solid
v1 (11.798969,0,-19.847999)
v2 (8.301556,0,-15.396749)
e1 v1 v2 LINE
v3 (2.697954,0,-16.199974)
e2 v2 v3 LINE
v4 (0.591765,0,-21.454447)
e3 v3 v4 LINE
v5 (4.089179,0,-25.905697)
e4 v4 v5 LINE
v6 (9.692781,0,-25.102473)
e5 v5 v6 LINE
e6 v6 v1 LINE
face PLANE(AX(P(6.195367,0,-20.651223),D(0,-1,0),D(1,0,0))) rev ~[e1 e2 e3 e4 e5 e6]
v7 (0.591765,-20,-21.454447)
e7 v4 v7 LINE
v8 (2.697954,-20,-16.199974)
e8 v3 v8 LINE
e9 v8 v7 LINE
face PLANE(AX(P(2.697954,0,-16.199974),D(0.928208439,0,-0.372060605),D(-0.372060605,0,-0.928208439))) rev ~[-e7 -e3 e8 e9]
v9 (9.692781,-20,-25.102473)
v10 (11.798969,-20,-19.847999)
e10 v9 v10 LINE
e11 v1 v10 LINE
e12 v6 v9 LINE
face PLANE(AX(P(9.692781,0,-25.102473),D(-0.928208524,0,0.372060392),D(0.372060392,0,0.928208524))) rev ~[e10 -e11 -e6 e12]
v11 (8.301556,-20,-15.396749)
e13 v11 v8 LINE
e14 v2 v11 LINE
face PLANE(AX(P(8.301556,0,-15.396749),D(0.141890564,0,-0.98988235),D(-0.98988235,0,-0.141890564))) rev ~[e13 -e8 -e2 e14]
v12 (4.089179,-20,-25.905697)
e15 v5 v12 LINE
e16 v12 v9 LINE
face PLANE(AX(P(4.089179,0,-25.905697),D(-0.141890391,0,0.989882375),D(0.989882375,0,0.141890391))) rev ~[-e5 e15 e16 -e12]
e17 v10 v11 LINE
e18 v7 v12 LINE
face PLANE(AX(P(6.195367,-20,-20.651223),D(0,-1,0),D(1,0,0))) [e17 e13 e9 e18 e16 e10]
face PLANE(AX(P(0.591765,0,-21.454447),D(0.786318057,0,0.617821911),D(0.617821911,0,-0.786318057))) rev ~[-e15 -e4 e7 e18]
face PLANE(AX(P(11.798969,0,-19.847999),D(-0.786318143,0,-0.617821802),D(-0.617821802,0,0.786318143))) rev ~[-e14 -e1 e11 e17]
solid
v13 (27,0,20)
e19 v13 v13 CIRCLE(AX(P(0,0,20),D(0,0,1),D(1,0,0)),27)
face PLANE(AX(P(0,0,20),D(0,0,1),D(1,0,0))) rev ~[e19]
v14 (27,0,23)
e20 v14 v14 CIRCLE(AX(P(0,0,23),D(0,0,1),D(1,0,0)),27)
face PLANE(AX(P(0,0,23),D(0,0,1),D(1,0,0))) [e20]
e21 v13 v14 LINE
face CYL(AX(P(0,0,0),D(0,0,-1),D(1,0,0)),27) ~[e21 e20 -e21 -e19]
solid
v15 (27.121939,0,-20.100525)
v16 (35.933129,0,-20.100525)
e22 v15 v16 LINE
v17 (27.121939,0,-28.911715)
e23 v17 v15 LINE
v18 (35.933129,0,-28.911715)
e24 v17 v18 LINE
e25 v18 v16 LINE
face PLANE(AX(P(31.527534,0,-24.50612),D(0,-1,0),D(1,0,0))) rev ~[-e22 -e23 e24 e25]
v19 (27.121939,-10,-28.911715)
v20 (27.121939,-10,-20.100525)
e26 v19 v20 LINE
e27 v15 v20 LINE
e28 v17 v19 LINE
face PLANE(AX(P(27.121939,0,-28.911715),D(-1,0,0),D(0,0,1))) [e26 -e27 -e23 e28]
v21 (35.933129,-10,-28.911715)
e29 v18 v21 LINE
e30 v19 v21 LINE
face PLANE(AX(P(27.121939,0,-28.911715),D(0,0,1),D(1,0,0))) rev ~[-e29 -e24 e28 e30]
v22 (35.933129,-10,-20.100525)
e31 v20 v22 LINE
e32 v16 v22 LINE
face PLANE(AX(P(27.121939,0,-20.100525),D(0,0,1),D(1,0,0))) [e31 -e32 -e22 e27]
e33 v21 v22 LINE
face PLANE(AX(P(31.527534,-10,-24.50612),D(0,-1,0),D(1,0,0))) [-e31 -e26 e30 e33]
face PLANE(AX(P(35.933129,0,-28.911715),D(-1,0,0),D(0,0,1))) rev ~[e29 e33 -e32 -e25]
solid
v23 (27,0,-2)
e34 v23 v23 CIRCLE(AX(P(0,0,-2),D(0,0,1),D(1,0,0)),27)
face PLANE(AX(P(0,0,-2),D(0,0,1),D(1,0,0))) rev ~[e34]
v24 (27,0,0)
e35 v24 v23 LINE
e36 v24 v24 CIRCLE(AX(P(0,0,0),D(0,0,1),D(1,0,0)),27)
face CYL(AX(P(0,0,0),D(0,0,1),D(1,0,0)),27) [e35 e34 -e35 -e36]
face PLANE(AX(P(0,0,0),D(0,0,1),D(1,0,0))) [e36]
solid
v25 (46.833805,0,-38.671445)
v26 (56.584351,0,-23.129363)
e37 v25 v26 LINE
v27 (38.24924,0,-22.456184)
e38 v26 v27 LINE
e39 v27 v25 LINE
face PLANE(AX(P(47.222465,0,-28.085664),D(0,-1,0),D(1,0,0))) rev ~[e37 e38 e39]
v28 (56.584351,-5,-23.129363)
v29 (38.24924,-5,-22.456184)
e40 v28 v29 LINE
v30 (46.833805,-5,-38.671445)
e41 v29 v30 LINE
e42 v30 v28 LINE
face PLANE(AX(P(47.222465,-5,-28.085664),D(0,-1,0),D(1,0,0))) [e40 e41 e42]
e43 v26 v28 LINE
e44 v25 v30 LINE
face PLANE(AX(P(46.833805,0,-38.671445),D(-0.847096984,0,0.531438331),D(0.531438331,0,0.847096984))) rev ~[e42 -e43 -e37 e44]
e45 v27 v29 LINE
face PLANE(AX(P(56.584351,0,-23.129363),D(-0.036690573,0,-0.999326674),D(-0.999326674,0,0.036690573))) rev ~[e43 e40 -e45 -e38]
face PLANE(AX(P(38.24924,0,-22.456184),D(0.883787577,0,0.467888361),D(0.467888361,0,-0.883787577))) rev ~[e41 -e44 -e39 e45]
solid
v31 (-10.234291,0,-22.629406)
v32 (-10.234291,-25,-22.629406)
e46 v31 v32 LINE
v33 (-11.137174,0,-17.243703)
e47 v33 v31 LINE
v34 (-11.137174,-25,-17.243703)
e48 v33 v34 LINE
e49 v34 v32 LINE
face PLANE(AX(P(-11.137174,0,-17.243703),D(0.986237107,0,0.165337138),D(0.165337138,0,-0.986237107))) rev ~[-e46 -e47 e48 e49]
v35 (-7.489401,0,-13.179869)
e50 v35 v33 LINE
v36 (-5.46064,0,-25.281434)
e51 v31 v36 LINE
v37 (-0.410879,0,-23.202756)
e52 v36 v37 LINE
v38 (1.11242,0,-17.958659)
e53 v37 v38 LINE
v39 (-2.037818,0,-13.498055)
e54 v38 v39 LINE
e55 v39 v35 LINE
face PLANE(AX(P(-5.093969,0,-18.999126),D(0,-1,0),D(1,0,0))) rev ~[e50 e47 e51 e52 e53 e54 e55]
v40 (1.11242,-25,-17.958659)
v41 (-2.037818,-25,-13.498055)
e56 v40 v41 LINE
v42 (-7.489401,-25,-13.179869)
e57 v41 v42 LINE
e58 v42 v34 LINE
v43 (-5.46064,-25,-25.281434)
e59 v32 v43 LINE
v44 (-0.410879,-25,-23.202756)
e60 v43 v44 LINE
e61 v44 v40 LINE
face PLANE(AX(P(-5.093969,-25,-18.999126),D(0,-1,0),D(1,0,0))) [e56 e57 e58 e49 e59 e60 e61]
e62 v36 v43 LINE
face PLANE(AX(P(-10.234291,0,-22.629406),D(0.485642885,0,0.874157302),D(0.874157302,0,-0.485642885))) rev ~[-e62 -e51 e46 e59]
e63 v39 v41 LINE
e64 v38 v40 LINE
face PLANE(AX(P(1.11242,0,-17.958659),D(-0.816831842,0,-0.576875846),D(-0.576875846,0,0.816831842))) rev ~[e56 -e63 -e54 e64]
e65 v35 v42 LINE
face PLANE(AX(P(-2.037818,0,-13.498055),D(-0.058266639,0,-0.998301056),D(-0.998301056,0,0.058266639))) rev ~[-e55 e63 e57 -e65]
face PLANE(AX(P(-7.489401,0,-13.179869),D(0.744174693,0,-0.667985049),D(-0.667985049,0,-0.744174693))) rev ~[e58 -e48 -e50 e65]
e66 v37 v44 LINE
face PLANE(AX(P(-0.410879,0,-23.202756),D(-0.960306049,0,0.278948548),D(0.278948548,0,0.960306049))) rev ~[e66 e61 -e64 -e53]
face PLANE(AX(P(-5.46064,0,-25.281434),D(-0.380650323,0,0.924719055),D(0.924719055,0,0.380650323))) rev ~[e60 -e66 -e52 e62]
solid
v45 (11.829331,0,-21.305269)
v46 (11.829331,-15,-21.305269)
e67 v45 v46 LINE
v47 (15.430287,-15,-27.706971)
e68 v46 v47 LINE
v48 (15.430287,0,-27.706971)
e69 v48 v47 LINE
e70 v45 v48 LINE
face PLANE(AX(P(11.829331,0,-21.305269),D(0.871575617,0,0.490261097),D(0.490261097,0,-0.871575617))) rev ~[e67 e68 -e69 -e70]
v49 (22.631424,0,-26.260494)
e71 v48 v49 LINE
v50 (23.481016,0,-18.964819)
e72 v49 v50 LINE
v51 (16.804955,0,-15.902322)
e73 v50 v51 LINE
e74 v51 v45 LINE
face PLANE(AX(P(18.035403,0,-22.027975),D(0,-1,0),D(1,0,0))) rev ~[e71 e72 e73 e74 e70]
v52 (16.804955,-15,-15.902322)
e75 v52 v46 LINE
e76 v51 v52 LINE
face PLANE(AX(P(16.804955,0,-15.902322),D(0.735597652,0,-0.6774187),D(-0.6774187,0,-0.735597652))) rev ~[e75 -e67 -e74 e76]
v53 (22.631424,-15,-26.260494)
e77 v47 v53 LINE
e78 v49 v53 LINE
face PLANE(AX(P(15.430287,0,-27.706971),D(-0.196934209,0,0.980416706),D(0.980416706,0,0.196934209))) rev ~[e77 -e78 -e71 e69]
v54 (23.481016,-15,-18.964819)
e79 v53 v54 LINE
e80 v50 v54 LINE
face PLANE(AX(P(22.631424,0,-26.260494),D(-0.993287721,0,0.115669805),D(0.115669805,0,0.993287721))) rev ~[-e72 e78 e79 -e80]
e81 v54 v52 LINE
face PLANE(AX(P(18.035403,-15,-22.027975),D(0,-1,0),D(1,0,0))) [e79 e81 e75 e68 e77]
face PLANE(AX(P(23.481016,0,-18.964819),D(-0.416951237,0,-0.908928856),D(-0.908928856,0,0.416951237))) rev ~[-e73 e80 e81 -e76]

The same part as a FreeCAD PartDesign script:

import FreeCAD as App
import Part
import Sketcher
Q = App.Units.Quantity

doc = App.newDocument("Part")
body = doc.addObject("PartDesign::Body", "Body")

# Sketch on XY plane
sketch1 = doc.addObject("Sketcher::SketchObject", "Sketch")
body.addObject(sketch1)
sketch1.AttachmentSupport = (doc.XY_Plane, [""])
sketch1.MapMode = "FlatFace"
sketch1.addGeometry(Part.Circle(App.Vector(0, 0, 0), App.Vector(0, 0, 1), 27), False)
sketch1.addConstraint([
    Sketcher.Constraint("Coincident", 0, 3, -1, 1),
    Sketcher.Constraint("Diameter", 0, Q("54 mm")),
])
pad1 = doc.addObject("PartDesign::Pad", "Pad")
body.addObject(pad1)
pad1.Profile = sketch1
pad1.Length = 2
pad1.Reversed = True
body2 = doc.addObject("PartDesign::Body", "Body001")

# Sketch on XY plane
sketch2 = doc.addObject("Sketcher::SketchObject", "Sketch001")
body2.addObject(sketch2)
sketch2.AttachmentSupport = (doc.getObject("XY_Plane001"), [""])
sketch2.MapMode = "FlatFace"
sketch2.addGeometry(Part.Circle(App.Vector(0, 0, 0), App.Vector(0, 0, 1), 27), False)
sketch2.addConstraint([
    Sketcher.Constraint("Coincident", 0, 3, -1, 1),
    Sketcher.Constraint("Diameter", 0, Q("54 mm")),
])
pad2 = doc.addObject("PartDesign::Pad", "Pad001")
body2.addObject(pad2)
pad2.Profile = sketch2
pad2.Length = 23

# Sketch on XY plane
sketch3 = doc.addObject("Sketcher::SketchObject", "Sketch002")
body2.addObject(sketch3)
sketch3.AttachmentSupport = (doc.getObject("XY_Plane001"), [""])
sketch3.MapMode = "FlatFace"
sketch3.addGeometry(Part.Circle(App.Vector(0, 0, 0), App.Vector(0, 0, 1), 27), False)
sketch3.addConstraint([
    Sketcher.Constraint("Coincident", 0, 3, -1, 1),
    Sketcher.Constraint("Diameter", 0, Q("54 mm")),
])
pocket1 = doc.addObject("PartDesign::Pocket", "Pocket")
body2.addObject(pocket1)
pocket1.Profile = sketch3
pocket1.Length = 20
pocket1.Reversed = True
body3 = doc.addObject("PartDesign::Body", "Body002")

# Sketch on XZ plane
sketch4 = doc.addObject("Sketcher::SketchObject", "Sketch003")
body3.addObject(sketch4)
sketch4.AttachmentSupport = (doc.getObject("XZ_Plane002"), [""])
sketch4.MapMode = "FlatFace"
sketch4.addGeometry([
    Part.LineSegment(App.Vector(38, -22, 0), App.Vector(47, -39, 0)),
    Part.LineSegment(App.Vector(47, -39, 0), App.Vector(57, -23, 0)),
    Part.LineSegment(App.Vector(57, -23, 0), App.Vector(38, -22, 0)),
], False)
sketch4.addConstraint([
    Sketcher.Constraint("Coincident", 0, 2, 1, 1),
    Sketcher.Constraint("Coincident", 1, 2, 2, 1),
    Sketcher.Constraint("Coincident", 2, 2, 0, 1),
    Sketcher.Constraint("Equal", 0, 1),
    Sketcher.Constraint("Equal", 1, 2),
    Sketcher.Constraint("DistanceX", -1, 1, 1, 2, Q("56.584351 mm")),
    Sketcher.Constraint("DistanceX", -1, 1, 2, 2, Q("38.24924 mm")),
    Sketcher.Constraint("DistanceY", 0, 2, 1, 2, Q("15.542082 mm")),
    Sketcher.Constraint("DistanceY", 0, 2, -1, 1, Q("38.671445 mm")),
])
pad3 = doc.addObject("PartDesign::Pad", "Pad002")
body3.addObject(pad3)
pad3.Profile = sketch4
pad3.Length = 5
body4 = doc.addObject("PartDesign::Body", "Body003")

# Sketch on XZ plane
sketch5 = doc.addObject("Sketcher::SketchObject", "Sketch004")
body4.addObject(sketch5)
sketch5.AttachmentSupport = (doc.getObject("XZ_Plane003"), [""])
sketch5.MapMode = "FlatFace"
sketch5.addGeometry([
    Part.LineSegment(App.Vector(27, -20, 0), App.Vector(27, -29, 0)),
    Part.LineSegment(App.Vector(27, -29, 0), App.Vector(36, -29, 0)),
    Part.LineSegment(App.Vector(36, -29, 0), App.Vector(36, -20, 0)),
    Part.LineSegment(App.Vector(36, -20, 0), App.Vector(27, -20, 0)),
], False)
sketch5.addConstraint([
    Sketcher.Constraint("Coincident", 0, 2, 1, 1),
    Sketcher.Constraint("Coincident", 1, 2, 2, 1),
    Sketcher.Constraint("Coincident", 2, 2, 3, 1),
    Sketcher.Constraint("Coincident", 3, 2, 0, 1),
    Sketcher.Constraint("Vertical", 0),
    Sketcher.Constraint("Horizontal", 1),
    Sketcher.Constraint("Vertical", 2),
    Sketcher.Constraint("Horizontal", 3),
    Sketcher.Constraint("Equal", 3, 0),
    Sketcher.Constraint("DistanceX", 1, 1, 1, 2, Q("8.81119 mm")),
    Sketcher.Constraint("DistanceX", -1, 1, 0, 2, Q("27.121939 mm")),
    Sketcher.Constraint("DistanceY", 0, 2, -1, 1, Q("28.911715 mm")),
])
pad4 = doc.addObject("PartDesign::Pad", "Pad003")
body4.addObject(pad4)
pad4.Profile = sketch5
pad4.Length = 10
body5 = doc.addObject("PartDesign::Body", "Body004")

# Sketch on XZ plane
sketch6 = doc.addObject("Sketcher::SketchObject", "Sketch005")
body5.addObject(sketch6)
sketch6.AttachmentSupport = (doc.getObject("XZ_Plane004"), [""])
sketch6.MapMode = "FlatFace"
sketch6.addGeometry([
    Part.LineSegment(App.Vector(12, -21, 0), App.Vector(15, -28, 0)),  # 0
    Part.LineSegment(App.Vector(15, -28, 0), App.Vector(23, -26, 0)),  # 1
    Part.LineSegment(App.Vector(23, -26, 0), App.Vector(23, -19, 0)),  # 2
    Part.LineSegment(App.Vector(23, -19, 0), App.Vector(17, -16, 0)),  # 3
    Part.LineSegment(App.Vector(17, -16, 0), App.Vector(12, -21, 0)),  # 4
], False)
sketch6.addConstraint([
    Sketcher.Constraint("Coincident", 0, 2, 1, 1),
    Sketcher.Constraint("Coincident", 1, 2, 2, 1),
    Sketcher.Constraint("Coincident", 2, 2, 3, 1),
    Sketcher.Constraint("Coincident", 3, 2, 4, 1),
    Sketcher.Constraint("Coincident", 4, 2, 0, 1),
    Sketcher.Constraint("Equal", 0, 1),
    Sketcher.Constraint("Equal", 1, 2),
    Sketcher.Constraint("Equal", 2, 3),
    Sketcher.Constraint("Equal", 3, 4),
    Sketcher.Constraint("DistanceY", 0, 2, -1, 1, Q("27.706971 mm")),
    Sketcher.Constraint("DistanceY", 2, 2, -1, 1, Q("18.964819 mm")),
    Sketcher.Constraint("DistanceX", -1, 1, 4, 2, Q("11.829331 mm")),
    Sketcher.Constraint("DistanceY", 4, 2, -1, 1, Q("21.305269 mm")),
    Sketcher.Constraint("DistanceX", 0, 2, 2, 2, Q("8.050729 mm")),
    Sketcher.Constraint("DistanceX", 3, 2, 2, 2, Q("6.676061 mm")),
])
pad5 = doc.addObject("PartDesign::Pad", "Pad004")
body5.addObject(pad5)
pad5.Profile = sketch6
pad5.Length = 15
body6 = doc.addObject("PartDesign::Body", "Body005")

# Sketch on XZ plane
sketch7 = doc.addObject("Sketcher::SketchObject", "Sketch006")
body6.addObject(sketch7)
sketch7.AttachmentSupport = (doc.getObject("XZ_Plane005"), [""])
sketch7.MapMode = "FlatFace"
sketch7.addGeometry([
    Part.LineSegment(App.Vector(1, -21, 0), App.Vector(4, -26, 0)),  # 0
    Part.LineSegment(App.Vector(4, -26, 0), App.Vector(10, -25, 0)),  # 1
    Part.LineSegment(App.Vector(10, -25, 0), App.Vector(12, -20, 0)),  # 2
    Part.LineSegment(App.Vector(12, -20, 0), App.Vector(8, -15, 0)),  # 3
    Part.LineSegment(App.Vector(8, -15, 0), App.Vector(3, -16, 0)),  # 4
    Part.LineSegment(App.Vector(3, -16, 0), App.Vector(1, -21, 0)),  # 5
], False)
sketch7.addConstraint([
    Sketcher.Constraint("Coincident", 0, 2, 1, 1),
    Sketcher.Constraint("Coincident", 1, 2, 2, 1),
    Sketcher.Constraint("Coincident", 2, 2, 3, 1),
    Sketcher.Constraint("Coincident", 3, 2, 4, 1),
    Sketcher.Constraint("Coincident", 4, 2, 5, 1),
    Sketcher.Constraint("Coincident", 5, 2, 0, 1),
    Sketcher.Constraint("Parallel", 0, 3),
    Sketcher.Constraint("Parallel", 1, 4),
    Sketcher.Constraint("Parallel", 2, 5),
    Sketcher.Constraint("Equal", 0, 1),
    Sketcher.Constraint("Equal", 1, 2),
    Sketcher.Constraint("Equal", 2, 3),
    Sketcher.Constraint("DistanceY", 2, 2, -1, 1, Q("19.847999 mm")),
    Sketcher.Constraint("DistanceX", 4, 2, 3, 2, Q("5.603602 mm")),
    Sketcher.Constraint("DistanceY", 1, 2, 4, 2, Q("8.902499 mm")),
    Sketcher.Constraint("DistanceX", -1, 1, 0, 2, Q("4.089179 mm")),
    Sketcher.Constraint("DistanceX", -1, 1, 2, 2, Q("11.798969 mm")),
    Sketcher.Constraint("DistanceY", 3, 2, -1, 1, Q("15.396749 mm")),
])
pad6 = doc.addObject("PartDesign::Pad", "Pad005")
body6.addObject(pad6)
pad6.Profile = sketch7
pad6.Length = 20
body7 = doc.addObject("PartDesign::Body", "Body006")

# Sketch on XZ plane
sketch8 = doc.addObject("Sketcher::SketchObject", "Sketch007")
body7.addObject(sketch8)
sketch8.AttachmentSupport = (doc.getObject("XZ_Plane006"), [""])
sketch8.MapMode = "FlatFace"
sketch8.addGeometry([
    Part.LineSegment(App.Vector(-10, -23, 0), App.Vector(-5, -25, 0)),  # 0
    Part.LineSegment(App.Vector(-5, -25, 0), App.Vector(0, -23, 0)),  # 1
    Part.LineSegment(App.Vector(0, -23, 0), App.Vector(1, -18, 0)),  # 2
    Part.LineSegment(App.Vector(1, -18, 0), App.Vector(-2, -13, 0)),  # 3
    Part.LineSegment(App.Vector(-2, -13, 0), App.Vector(-7, -13, 0)),  # 4
    Part.LineSegment(App.Vector(-7, -13, 0), App.Vector(-11, -17, 0)),  # 5
    Part.LineSegment(App.Vector(-11, -17, 0), App.Vector(-10, -23, 0)),  # 6
], False)
sketch8.addConstraint([
    Sketcher.Constraint("Coincident", 0, 2, 1, 1),
    Sketcher.Constraint("Coincident", 1, 2, 2, 1),
    Sketcher.Constraint("Coincident", 2, 2, 3, 1),
    Sketcher.Constraint("Coincident", 3, 2, 4, 1),
    Sketcher.Constraint("Coincident", 4, 2, 5, 1),
    Sketcher.Constraint("Coincident", 5, 2, 6, 1),
    Sketcher.Constraint("Coincident", 6, 2, 0, 1),
    Sketcher.Constraint("Equal", 0, 1),
    Sketcher.Constraint("Equal", 1, 2),
    Sketcher.Constraint("Equal", 2, 3),
    Sketcher.Constraint("Equal", 3, 4),
    Sketcher.Constraint("Equal", 4, 5),
    Sketcher.Constraint("Equal", 5, 6),
    Sketcher.Constraint("DistanceX", 4, 2, -1, 1, Q("7.489401 mm")),
    Sketcher.Constraint("DistanceX", 1, 2, 2, 2, Q("1.523299 mm")),
    Sketcher.Constraint("DistanceY", 1, 2, 3, 2, Q("9.704701 mm")),
    Sketcher.Constraint("Distance", 0, Q("5.46086 mm")),
    Sketcher.Constraint("DistanceX", 0, 2, -1, 1, Q("5.46064 mm")),
    Sketcher.Constraint("DistanceX", 1, 2, -1, 1, Q("0.410879 mm")),
    Sketcher.Constraint("DistanceY", 2, 2, -1, 1, Q("17.958659 mm")),
    Sketcher.Constraint("DistanceX", 6, 2, -1, 1, Q("10.234291 mm")),
])
pad7 = doc.addObject("PartDesign::Pad", "Pad006")
body7.addObject(pad7)
pad7.Profile = sketch8
pad7.Length = 25

doc.recompute()
